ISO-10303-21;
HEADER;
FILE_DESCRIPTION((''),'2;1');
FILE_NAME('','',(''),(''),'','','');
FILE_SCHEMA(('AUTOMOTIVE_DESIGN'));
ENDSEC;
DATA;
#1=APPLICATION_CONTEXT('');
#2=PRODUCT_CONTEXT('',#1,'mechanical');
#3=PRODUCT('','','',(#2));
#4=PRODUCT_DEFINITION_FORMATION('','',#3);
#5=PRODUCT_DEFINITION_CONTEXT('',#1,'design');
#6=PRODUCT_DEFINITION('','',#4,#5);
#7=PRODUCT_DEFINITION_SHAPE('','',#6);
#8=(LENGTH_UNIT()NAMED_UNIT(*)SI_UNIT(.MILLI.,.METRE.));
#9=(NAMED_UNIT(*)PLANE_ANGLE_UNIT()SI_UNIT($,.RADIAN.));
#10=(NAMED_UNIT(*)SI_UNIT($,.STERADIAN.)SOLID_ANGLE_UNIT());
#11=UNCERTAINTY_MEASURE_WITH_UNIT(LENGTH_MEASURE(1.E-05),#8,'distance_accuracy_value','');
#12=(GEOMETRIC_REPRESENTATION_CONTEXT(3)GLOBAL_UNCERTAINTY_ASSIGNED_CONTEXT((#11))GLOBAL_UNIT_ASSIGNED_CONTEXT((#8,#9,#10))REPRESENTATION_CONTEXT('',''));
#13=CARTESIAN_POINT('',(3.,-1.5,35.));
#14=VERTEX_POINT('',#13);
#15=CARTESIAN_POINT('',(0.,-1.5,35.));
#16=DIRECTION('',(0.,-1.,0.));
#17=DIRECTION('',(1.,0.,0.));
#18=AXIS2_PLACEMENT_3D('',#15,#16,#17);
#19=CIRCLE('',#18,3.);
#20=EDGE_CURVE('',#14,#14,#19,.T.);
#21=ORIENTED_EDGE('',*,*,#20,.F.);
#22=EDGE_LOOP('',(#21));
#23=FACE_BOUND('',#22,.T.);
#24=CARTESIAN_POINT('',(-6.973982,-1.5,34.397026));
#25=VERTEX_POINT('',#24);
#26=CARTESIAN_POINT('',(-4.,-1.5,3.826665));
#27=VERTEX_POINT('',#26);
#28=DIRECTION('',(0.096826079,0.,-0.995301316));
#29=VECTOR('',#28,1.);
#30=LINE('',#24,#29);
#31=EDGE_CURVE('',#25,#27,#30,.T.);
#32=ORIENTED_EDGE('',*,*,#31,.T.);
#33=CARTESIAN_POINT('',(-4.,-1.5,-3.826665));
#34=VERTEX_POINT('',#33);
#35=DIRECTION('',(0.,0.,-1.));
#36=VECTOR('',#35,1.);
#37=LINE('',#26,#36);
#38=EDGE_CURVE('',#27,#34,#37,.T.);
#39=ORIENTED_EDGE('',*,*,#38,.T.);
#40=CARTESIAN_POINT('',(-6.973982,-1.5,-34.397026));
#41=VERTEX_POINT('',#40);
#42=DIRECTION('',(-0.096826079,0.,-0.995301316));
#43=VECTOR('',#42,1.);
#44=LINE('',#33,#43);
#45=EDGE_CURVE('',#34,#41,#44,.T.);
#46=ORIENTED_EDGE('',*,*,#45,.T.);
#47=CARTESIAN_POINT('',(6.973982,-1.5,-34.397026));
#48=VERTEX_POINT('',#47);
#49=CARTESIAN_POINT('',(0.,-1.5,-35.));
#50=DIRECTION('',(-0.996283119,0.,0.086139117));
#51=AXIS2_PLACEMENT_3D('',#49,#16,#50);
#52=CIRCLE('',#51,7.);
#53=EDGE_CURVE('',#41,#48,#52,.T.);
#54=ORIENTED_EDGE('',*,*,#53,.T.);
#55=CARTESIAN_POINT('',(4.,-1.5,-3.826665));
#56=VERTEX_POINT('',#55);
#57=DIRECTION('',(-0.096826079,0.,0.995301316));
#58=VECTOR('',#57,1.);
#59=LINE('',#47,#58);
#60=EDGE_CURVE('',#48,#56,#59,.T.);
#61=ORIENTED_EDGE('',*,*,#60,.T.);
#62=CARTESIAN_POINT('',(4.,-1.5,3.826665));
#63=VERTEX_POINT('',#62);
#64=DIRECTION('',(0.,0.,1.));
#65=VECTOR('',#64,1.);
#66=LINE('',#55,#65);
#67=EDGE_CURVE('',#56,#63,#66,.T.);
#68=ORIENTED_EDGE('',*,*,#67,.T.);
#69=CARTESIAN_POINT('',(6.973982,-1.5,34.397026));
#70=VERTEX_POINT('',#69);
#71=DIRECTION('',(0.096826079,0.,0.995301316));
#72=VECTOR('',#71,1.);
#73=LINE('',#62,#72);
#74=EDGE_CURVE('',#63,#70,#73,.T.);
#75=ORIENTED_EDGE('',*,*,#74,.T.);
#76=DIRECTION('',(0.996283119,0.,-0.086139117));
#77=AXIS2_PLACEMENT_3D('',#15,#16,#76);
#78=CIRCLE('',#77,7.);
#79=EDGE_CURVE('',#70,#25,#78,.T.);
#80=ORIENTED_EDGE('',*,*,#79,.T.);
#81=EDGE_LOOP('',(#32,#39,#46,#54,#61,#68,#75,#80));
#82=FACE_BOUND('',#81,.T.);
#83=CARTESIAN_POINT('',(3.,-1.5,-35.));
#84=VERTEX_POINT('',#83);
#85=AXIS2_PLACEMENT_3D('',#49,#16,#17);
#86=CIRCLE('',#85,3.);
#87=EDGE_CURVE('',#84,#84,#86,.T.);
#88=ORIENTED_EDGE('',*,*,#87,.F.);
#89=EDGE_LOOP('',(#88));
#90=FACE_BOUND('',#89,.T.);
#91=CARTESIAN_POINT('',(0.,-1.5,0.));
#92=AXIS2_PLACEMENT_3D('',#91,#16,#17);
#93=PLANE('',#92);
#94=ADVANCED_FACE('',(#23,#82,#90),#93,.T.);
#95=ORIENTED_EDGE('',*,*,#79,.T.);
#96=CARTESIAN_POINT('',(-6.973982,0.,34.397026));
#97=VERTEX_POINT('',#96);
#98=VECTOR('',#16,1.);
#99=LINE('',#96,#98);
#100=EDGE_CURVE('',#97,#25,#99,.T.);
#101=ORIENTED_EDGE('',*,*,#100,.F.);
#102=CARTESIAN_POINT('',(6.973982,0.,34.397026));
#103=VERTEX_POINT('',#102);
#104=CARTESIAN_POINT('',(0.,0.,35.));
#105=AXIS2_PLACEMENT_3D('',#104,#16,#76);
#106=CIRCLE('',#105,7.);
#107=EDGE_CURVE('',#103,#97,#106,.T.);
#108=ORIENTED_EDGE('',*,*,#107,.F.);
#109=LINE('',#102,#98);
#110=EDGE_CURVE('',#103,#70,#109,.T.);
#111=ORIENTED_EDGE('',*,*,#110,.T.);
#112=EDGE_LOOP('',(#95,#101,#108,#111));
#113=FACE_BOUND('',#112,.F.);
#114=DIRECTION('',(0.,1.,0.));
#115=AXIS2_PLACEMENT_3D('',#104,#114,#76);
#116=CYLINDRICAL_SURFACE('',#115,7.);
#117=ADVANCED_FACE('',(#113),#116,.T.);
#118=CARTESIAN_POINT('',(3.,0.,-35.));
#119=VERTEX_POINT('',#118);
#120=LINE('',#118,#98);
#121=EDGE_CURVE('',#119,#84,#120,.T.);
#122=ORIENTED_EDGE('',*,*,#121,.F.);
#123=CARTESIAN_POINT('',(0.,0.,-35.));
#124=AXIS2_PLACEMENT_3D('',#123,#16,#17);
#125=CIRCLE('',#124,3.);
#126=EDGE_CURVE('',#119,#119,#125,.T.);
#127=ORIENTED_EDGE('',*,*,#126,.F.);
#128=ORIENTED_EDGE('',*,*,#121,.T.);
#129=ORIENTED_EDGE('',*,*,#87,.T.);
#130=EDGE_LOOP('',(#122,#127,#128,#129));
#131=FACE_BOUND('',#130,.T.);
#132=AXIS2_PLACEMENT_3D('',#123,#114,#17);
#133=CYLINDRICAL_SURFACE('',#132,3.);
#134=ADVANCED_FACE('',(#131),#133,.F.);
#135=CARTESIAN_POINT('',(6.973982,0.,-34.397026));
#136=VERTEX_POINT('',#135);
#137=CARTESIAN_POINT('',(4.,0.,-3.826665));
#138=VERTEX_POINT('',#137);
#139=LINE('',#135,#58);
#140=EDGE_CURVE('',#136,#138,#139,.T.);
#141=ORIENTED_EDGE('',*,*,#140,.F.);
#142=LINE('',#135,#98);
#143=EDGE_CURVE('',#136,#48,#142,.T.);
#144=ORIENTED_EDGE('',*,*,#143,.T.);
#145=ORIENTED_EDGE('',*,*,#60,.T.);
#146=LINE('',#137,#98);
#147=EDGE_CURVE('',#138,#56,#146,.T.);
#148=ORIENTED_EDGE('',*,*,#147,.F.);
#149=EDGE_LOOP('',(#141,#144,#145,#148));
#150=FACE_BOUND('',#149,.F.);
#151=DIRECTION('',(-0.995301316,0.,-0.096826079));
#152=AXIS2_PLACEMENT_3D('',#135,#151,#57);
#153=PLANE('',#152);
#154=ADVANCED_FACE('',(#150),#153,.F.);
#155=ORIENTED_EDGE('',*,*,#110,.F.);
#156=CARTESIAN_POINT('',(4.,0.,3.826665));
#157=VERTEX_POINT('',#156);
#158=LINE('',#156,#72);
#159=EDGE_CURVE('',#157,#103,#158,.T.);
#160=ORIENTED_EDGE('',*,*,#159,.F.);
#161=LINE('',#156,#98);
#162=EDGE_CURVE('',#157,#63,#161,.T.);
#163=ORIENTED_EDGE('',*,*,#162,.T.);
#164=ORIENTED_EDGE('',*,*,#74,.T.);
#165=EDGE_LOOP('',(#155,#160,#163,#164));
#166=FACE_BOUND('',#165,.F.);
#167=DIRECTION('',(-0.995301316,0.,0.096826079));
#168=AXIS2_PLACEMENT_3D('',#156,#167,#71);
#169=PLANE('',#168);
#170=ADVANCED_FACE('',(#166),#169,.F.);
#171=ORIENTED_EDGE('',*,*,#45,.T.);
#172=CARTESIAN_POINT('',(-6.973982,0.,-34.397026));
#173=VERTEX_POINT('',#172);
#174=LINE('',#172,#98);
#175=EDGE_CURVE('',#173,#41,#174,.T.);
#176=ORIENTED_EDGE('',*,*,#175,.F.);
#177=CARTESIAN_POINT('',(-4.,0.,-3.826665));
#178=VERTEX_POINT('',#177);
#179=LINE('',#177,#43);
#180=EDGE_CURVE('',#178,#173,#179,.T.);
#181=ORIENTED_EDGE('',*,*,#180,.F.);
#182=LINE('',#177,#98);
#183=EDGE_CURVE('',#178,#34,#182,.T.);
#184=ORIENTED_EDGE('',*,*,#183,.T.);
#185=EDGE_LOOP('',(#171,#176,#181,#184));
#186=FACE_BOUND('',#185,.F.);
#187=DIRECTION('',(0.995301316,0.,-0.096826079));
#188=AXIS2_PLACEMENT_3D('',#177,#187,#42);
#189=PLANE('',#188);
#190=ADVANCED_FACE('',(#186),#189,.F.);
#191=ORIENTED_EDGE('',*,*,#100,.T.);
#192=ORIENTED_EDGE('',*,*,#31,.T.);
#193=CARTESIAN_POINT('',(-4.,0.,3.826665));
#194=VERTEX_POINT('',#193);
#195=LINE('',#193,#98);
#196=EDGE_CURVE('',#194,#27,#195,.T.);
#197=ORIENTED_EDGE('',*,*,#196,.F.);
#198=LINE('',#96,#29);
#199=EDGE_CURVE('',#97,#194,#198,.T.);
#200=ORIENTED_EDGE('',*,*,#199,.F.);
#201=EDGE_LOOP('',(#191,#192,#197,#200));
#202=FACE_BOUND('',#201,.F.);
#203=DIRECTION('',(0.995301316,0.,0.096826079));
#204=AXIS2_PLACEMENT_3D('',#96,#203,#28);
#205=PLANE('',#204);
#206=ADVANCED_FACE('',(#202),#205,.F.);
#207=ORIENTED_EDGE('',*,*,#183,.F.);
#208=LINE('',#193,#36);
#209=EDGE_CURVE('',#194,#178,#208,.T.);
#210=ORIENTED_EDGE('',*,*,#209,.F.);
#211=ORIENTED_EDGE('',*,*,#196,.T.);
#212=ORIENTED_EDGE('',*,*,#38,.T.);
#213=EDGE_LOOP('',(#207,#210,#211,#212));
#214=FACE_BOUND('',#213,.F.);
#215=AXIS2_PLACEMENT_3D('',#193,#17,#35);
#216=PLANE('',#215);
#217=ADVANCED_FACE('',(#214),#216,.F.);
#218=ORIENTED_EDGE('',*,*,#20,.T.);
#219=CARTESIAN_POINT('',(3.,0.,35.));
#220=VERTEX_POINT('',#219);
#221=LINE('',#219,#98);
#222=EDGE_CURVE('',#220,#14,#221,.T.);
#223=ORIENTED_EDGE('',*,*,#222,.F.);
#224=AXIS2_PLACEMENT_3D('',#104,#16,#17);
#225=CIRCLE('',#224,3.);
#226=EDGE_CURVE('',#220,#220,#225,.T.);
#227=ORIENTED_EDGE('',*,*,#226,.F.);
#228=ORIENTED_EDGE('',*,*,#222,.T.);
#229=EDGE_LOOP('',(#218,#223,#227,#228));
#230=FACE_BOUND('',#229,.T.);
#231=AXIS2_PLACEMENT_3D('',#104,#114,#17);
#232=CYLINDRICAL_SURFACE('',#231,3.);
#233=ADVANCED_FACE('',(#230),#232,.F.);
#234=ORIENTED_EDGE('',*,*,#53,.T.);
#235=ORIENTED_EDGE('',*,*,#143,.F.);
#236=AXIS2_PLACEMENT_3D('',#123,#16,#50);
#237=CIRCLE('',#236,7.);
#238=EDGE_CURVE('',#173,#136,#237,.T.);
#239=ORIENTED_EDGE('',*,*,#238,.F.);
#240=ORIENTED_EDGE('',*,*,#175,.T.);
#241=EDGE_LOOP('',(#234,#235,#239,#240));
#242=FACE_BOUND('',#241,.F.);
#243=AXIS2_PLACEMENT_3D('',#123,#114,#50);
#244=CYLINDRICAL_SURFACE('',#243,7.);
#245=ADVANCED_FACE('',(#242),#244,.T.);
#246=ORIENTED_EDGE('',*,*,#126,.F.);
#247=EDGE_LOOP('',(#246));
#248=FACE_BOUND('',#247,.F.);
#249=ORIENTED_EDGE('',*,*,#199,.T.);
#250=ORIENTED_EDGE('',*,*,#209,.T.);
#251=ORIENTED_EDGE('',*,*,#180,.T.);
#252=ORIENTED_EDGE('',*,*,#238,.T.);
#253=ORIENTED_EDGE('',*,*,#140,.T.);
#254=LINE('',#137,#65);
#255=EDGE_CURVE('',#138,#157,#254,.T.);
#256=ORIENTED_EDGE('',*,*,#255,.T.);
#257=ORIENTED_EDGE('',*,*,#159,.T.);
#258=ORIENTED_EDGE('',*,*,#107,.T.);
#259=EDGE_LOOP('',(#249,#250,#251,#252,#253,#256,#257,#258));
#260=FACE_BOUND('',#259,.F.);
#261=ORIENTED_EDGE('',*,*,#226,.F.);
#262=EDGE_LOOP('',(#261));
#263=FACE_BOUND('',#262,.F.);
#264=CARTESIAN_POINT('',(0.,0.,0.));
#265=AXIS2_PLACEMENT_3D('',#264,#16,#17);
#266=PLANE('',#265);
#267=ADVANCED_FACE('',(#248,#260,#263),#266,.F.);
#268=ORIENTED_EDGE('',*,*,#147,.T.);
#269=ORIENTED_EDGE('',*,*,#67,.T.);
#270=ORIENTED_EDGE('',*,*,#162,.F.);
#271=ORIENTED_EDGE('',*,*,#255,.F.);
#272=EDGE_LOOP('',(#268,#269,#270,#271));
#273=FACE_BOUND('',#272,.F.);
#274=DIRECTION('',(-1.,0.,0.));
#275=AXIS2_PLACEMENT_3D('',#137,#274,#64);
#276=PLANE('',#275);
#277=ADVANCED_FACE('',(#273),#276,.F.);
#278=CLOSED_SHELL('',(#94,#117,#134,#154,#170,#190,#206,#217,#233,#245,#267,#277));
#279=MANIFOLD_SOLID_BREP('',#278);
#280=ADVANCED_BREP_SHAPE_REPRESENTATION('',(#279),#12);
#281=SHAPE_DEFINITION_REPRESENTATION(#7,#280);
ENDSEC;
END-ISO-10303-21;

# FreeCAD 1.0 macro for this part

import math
import FreeCAD as App
import Part
import Sketcher

V = App.Vector

doc = App.newDocument("Part")
body = doc.addObject("PartDesign::Body", "Body")

sketch1 = body.newObject("Sketcher::SketchObject", "Sketch")
sketch1.AttachmentSupport = (doc.getObject("XZ_Plane"), [""])
sketch1.MapMode = "FlatFace"
sketch1.addGeometry([
    Part.LineSegment(V(4, 3.8, 0), V(7, 34.4, 0)),
    Part.ArcOfCircle(Part.Circle(V(0, 35, 0), V(0, 0, 1), 7), math.radians(-5), math.radians(185)),
    Part.LineSegment(V(-7, 34.4, 0), V(-4, 3.8, 0)),
    Part.LineSegment(V(-4, 3.8, 0), V(-4, -3.8, 0)),
    Part.LineSegment(V(-4, -3.8, 0), V(-7, -34.4, 0)),
    Part.ArcOfCircle(Part.Circle(V(0, -35, 0), V(0, 0, 1), 7), math.radians(175), math.radians(365)),
    Part.LineSegment(V(7, -34.4, 0), V(4, -3.8, 0)),
    Part.LineSegment(V(4, -3.8, 0), V(4, 3.8, 0)),
    Part.Circle(V(0, -35, 0), V(0, 0, 1), 3),
    Part.Circle(V(0, 35, 0), V(0, 0, 1), 3),
], False)
sketch1.addConstraint([
    Sketcher.Constraint("Coincident", 0, 2, 1, 1),
    Sketcher.Constraint("Coincident", 1, 2, 2, 1),
    Sketcher.Constraint("Coincident", 2, 2, 3, 1),
    Sketcher.Constraint("Coincident", 3, 2, 4, 1),
    Sketcher.Constraint("Coincident", 4, 2, 5, 1),
    Sketcher.Constraint("Coincident", 5, 2, 6, 1),
    Sketcher.Constraint("Coincident", 6, 2, 7, 1),
    Sketcher.Constraint("Coincident", 7, 2, 0, 1),
    Sketcher.Constraint("Vertical", 3),
    Sketcher.Constraint("Vertical", 7),
    Sketcher.Constraint("Coincident", 8, 3, 5, 3),
    Sketcher.Constraint("Coincident", 9, 3, 1, 3),
    Sketcher.Constraint("Equal", 1, 5),
    Sketcher.Constraint("Equal", 8, 9),
    Sketcher.Constraint("Symmetric", 1, 3, 5, 3, -1, 1),
    Sketcher.Constraint("Symmetric", 2, 2, 6, 2, -1, 1),
    Sketcher.Constraint("Symmetric", 0, 2, 1, 2, -2),
    Sketcher.Constraint("Parallel", 0, 4),
    Sketcher.Constraint("Parallel", 2, 6),
    Sketcher.Constraint("Horizontal", 4, 2, 5, 2),
    Sketcher.Constraint("Horizontal", 3, 2, 6, 2),
    Sketcher.Constraint("Diameter", 8, 6.0),
    Sketcher.Constraint("Radius", 1, 7.0),
    Sketcher.Constraint("DistanceY", -1, 1, 1, 3, 35.0),
    Sketcher.Constraint("DistanceX", 2, 2, -1, 1, 4.0),
    Sketcher.Constraint("DistanceY", 3, 2, 3, 1, 7.65333),
    Sketcher.Constraint("Distance", 0, 30.71468),
])
pad1 = body.newObject("PartDesign::Pad", "Pad")
pad1.Profile = sketch1
pad1.Length = 1.5

doc.recompute()
